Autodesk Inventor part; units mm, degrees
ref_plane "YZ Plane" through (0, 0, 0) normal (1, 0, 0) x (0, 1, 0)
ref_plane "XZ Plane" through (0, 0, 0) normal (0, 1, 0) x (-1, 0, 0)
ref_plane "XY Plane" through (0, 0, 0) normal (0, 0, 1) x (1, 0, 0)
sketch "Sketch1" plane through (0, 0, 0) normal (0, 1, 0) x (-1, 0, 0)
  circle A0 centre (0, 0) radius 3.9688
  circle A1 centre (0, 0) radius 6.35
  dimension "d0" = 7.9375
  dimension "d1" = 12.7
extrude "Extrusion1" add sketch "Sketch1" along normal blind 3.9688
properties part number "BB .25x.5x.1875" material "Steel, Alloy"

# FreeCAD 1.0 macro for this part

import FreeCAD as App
import Part
import Sketcher
Q = App.Units.Quantity

doc = App.newDocument("Part")
body = doc.addObject("PartDesign::Body", "Body")

# Sketch on XZ plane
sketch1 = doc.addObject("Sketcher::SketchObject", "Sketch")
body.addObject(sketch1)
sketch1.AttachmentSupport = (doc.XZ_Plane, [""])
sketch1.MapMode = "FlatFace"
sketch1.addGeometry(Part.Circle(App.Vector(0, 0, 0), App.Vector(0, 0, 1), 6.3), False)
sketch1.addGeometry(Part.Circle(App.Vector(0, 0, 0), App.Vector(0, 0, 1), 4), False)
sketch1.addConstraint(Sketcher.Constraint("Coincident", 0, 3, -1, 1))
sketch1.addConstraint(Sketcher.Constraint("Coincident", 1, 3, -1, 1))
sketch1.addConstraint(Sketcher.Constraint("Diameter", 0, Q("0.5 in")))
sketch1.addConstraint(Sketcher.Constraint("Diameter", 1, Q("0.3125 in")))
pad1 = doc.addObject("PartDesign::Pad", "Pad")
body.addObject(pad1)
pad1.Profile = sketch1
pad1.Length = Q("0.156252 in")
pad1.Reversed = True

doc.recompute()
